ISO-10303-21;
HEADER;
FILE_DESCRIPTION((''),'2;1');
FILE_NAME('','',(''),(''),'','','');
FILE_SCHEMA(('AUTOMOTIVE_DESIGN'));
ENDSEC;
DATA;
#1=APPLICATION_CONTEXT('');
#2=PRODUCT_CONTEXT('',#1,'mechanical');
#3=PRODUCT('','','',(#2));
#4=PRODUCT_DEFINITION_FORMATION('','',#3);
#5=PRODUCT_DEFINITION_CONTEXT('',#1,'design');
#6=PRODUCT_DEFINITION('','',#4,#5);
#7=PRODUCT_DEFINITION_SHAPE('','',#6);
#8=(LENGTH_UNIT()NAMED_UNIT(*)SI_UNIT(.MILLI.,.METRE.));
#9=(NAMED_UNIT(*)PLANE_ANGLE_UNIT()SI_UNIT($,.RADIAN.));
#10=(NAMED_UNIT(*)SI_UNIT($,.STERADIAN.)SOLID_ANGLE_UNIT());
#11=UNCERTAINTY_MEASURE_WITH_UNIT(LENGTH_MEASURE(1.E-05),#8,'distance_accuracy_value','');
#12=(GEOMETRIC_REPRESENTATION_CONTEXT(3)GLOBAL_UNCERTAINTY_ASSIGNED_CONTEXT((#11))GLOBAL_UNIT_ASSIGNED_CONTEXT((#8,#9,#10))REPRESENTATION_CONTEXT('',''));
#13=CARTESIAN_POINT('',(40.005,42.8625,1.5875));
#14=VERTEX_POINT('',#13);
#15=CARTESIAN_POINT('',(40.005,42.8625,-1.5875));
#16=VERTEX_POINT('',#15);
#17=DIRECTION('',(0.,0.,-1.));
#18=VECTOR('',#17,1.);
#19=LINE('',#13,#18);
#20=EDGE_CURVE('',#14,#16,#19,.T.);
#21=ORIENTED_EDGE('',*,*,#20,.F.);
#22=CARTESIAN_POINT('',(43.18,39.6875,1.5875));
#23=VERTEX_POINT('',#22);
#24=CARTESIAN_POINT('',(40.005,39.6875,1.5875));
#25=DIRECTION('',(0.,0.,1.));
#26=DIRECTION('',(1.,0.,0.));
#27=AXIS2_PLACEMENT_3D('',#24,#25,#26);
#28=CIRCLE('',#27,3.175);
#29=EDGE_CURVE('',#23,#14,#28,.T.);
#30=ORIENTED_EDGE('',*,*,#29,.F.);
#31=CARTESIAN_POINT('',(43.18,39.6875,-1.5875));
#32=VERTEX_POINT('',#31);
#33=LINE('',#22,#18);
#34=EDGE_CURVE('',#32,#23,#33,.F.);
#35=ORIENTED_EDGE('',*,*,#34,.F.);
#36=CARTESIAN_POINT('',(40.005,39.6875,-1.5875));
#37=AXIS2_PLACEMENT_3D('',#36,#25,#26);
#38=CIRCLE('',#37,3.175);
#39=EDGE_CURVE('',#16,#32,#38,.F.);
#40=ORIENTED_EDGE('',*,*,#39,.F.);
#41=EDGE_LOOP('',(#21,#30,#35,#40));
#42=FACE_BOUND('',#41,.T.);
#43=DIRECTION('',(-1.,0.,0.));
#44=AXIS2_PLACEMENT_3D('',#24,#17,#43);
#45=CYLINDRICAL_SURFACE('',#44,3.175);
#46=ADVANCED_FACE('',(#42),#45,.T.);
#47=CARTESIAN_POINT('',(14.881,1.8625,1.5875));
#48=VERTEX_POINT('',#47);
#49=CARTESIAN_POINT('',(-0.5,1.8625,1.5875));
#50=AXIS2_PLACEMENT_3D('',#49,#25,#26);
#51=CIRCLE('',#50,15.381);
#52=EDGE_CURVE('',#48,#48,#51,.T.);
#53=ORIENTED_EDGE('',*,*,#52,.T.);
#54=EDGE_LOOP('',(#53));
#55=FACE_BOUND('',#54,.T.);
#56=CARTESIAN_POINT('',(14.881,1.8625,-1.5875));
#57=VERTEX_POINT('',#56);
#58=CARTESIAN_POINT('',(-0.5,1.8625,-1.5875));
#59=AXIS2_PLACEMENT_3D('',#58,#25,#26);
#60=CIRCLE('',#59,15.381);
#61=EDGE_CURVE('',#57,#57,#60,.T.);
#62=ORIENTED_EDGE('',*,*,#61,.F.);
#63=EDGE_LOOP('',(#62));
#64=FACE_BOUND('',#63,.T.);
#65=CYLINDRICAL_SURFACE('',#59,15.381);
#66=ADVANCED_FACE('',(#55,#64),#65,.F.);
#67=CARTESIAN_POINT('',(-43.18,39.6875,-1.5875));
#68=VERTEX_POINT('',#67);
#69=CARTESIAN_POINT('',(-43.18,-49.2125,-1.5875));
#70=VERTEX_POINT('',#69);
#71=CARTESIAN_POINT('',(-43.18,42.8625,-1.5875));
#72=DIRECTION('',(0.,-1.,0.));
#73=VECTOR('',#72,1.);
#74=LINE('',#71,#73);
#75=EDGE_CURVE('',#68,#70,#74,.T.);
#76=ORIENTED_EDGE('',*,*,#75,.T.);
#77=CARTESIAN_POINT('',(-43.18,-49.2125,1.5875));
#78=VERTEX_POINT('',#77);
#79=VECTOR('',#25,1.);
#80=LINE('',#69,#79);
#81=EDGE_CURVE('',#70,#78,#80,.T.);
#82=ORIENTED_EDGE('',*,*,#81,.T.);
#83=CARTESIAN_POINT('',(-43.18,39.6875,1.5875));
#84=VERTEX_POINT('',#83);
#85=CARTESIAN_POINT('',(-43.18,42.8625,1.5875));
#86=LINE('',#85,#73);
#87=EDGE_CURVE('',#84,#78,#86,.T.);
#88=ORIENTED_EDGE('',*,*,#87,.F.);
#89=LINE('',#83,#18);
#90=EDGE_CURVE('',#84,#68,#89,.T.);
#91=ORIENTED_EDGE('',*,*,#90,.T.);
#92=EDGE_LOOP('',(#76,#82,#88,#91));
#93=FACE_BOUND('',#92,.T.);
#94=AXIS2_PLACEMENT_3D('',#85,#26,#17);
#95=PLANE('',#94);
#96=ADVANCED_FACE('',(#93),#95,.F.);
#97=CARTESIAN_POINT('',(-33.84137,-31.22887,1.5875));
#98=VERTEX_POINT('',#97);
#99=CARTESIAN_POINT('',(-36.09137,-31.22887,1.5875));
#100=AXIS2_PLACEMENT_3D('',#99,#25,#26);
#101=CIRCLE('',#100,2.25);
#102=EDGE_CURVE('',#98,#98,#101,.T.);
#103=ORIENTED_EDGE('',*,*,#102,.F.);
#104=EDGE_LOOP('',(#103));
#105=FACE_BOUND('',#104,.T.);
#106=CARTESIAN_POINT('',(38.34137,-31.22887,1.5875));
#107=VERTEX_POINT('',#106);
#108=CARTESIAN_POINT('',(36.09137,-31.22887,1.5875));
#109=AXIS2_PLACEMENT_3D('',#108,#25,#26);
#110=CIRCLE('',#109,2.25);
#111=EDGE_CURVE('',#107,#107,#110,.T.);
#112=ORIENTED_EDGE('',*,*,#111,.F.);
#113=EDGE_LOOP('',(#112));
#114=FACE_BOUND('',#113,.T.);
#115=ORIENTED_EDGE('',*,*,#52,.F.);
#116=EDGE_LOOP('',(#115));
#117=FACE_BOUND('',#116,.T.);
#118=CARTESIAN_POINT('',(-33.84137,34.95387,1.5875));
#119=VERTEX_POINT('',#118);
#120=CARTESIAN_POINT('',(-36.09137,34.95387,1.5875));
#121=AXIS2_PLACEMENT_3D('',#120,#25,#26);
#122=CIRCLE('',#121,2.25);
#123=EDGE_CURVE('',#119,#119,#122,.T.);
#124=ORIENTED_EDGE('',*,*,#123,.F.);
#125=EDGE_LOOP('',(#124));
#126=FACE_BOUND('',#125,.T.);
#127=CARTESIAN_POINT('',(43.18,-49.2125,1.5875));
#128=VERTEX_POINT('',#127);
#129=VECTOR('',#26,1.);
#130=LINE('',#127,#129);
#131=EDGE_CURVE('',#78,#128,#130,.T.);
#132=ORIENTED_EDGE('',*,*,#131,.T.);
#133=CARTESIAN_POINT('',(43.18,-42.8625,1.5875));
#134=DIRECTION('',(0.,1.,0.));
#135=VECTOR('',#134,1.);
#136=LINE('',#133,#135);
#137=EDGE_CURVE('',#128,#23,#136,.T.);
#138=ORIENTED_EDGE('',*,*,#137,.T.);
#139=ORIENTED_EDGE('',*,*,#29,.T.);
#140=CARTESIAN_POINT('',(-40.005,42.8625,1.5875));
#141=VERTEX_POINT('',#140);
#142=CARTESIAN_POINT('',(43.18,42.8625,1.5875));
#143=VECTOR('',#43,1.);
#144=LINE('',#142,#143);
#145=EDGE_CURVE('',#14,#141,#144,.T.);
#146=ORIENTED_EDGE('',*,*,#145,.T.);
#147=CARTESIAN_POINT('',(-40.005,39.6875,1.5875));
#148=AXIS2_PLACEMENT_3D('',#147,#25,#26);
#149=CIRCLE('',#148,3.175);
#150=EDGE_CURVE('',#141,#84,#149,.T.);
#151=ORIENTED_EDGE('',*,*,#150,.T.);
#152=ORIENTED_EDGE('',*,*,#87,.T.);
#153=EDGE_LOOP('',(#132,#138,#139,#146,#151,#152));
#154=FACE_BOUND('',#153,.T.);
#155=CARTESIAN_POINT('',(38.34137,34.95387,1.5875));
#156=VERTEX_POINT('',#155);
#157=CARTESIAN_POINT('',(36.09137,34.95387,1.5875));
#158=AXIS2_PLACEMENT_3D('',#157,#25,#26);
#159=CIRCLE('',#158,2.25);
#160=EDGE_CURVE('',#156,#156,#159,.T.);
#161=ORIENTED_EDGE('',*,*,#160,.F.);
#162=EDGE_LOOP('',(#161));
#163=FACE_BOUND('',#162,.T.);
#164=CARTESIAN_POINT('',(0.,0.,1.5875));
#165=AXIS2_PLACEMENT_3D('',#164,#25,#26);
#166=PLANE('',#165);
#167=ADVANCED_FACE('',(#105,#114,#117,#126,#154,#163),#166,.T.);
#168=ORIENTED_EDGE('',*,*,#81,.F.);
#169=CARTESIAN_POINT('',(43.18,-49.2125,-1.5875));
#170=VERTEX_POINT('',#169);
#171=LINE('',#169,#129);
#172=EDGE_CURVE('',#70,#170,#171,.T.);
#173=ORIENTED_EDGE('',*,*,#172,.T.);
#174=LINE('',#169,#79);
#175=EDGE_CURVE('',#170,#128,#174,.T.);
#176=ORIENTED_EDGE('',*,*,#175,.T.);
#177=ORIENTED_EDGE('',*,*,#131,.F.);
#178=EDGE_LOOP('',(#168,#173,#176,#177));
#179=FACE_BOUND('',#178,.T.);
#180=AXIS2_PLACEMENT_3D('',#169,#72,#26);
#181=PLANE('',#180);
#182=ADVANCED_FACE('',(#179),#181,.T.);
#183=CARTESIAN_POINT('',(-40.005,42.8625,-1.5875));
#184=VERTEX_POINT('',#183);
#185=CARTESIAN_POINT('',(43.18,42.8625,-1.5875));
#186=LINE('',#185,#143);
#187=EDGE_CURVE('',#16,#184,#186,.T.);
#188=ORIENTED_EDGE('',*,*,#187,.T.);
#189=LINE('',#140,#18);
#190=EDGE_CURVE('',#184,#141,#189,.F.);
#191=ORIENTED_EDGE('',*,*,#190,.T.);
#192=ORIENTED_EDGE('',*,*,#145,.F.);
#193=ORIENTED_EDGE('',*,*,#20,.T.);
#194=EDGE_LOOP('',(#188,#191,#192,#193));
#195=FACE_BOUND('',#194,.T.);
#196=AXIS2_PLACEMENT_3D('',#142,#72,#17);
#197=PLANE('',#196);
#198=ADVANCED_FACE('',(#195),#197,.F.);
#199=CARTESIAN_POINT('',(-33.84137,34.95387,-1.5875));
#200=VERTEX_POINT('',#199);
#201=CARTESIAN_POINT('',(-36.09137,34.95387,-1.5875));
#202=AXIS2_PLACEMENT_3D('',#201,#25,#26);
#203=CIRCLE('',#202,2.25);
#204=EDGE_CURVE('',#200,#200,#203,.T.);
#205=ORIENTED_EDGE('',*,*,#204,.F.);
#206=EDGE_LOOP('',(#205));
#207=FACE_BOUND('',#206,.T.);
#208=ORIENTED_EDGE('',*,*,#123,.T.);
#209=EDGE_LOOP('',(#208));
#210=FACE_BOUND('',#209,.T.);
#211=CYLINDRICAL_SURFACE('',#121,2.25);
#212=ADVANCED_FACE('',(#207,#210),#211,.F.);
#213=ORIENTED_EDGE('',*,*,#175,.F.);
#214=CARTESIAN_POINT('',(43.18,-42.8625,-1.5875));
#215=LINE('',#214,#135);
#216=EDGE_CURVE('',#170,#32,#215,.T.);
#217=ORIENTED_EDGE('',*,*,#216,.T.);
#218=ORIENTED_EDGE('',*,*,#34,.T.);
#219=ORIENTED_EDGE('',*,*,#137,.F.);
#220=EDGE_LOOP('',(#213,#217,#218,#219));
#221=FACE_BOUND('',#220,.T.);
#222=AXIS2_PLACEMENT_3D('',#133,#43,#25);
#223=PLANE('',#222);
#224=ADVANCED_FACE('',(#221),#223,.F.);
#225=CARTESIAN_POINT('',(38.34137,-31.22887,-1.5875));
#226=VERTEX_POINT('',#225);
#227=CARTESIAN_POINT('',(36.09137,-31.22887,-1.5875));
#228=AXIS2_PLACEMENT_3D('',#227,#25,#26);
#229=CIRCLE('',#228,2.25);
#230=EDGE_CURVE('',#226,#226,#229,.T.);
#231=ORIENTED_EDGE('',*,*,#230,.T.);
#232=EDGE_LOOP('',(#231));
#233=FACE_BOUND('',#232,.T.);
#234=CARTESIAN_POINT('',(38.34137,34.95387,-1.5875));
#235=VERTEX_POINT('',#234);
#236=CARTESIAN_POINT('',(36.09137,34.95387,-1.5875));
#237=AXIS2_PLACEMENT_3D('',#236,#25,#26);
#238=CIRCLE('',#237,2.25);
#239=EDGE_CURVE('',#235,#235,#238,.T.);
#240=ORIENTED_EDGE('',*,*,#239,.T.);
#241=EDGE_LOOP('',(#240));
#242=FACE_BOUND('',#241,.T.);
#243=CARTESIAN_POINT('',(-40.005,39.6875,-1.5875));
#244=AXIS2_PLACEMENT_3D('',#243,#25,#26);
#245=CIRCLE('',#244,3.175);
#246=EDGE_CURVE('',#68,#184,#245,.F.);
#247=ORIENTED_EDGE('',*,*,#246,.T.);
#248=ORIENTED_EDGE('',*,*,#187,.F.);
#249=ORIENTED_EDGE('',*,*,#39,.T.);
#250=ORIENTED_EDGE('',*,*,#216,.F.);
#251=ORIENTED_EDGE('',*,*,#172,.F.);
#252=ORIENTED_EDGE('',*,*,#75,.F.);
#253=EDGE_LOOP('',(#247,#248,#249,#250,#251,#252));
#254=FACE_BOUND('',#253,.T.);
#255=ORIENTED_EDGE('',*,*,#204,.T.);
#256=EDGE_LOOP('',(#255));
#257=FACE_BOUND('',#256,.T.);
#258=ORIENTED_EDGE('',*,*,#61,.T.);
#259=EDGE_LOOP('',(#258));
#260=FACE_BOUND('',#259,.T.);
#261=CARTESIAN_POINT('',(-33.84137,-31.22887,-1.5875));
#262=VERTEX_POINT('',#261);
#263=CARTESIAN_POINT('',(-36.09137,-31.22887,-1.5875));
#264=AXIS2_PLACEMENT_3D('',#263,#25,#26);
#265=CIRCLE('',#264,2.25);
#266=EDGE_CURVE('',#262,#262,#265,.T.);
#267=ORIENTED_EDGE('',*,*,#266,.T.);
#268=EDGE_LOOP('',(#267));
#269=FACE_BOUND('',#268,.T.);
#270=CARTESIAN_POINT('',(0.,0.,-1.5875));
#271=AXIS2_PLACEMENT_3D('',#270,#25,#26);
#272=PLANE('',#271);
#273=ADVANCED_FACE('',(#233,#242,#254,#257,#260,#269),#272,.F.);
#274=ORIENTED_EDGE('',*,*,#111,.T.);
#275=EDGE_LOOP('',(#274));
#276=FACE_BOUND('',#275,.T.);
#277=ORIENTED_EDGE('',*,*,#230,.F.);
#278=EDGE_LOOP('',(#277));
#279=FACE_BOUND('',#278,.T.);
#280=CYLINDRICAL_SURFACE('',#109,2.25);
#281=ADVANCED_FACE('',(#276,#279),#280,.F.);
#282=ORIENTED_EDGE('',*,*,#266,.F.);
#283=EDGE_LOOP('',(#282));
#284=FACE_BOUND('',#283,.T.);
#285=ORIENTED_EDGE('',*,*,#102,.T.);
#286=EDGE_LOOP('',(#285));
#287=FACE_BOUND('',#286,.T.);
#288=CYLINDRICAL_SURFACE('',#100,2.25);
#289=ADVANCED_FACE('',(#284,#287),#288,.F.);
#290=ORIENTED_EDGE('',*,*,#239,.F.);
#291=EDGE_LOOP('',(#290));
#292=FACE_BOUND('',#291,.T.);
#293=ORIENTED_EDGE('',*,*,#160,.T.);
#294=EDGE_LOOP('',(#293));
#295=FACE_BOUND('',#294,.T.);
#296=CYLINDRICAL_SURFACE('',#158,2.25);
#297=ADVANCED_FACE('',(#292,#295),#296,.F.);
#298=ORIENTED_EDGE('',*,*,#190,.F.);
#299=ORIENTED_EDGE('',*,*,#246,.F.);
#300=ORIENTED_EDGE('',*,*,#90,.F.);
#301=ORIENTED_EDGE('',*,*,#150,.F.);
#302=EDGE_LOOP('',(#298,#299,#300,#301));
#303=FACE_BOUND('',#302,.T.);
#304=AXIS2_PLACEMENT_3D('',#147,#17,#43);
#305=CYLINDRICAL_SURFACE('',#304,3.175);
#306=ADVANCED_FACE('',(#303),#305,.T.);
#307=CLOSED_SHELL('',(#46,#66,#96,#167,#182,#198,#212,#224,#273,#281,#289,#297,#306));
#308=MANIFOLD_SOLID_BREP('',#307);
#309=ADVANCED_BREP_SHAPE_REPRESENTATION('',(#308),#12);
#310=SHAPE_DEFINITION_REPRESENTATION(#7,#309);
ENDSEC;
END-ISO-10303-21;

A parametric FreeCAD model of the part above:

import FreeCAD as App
import Part
import Sketcher
Q = App.Units.Quantity


def edges_at(feature, points):
    """Names of the edges that pass closest to the given points."""
    edges = feature.Shape.Edges
    near = lambda p: min(range(len(edges)), key=lambda i: edges[i].distToShape(Part.Vertex(*p))[0])
    return sorted({f"Edge{near(p) + 1}" for p in points})


def add_polygon(sketch, points):
    """Adds a closed chain of lines whose ends are joined by coincident constraints."""
    first, n = sketch.GeometryCount, len(points)
    for a, b in zip(points, points[1:] + points[:1]):
        sketch.addGeometry(Part.LineSegment(App.Vector(*a, 0), App.Vector(*b, 0)), False)
    for i in range(n):
        sketch.addConstraint(Sketcher.Constraint("Coincident", first + i, 2, first + (i + 1) % n, 1))

doc = App.newDocument("Part")
body = doc.addObject("PartDesign::Body", "Body")

# Sketch on XY plane
sketch1 = doc.addObject("Sketcher::SketchObject", "Sketch")
body.addObject(sketch1)
sketch1.AttachmentSupport = (doc.XY_Plane, [""])
sketch1.MapMode = "FlatFace"
add_polygon(sketch1, [(-43, 43), (-43, -43), (43, -43), (43, 43)])  # lines 0-3
sketch1.addConstraint([
    Sketcher.Constraint("Vertical", 0),
    Sketcher.Constraint("Horizontal", 1),
    Sketcher.Constraint("Vertical", 2),
    Sketcher.Constraint("Horizontal", 3),
    Sketcher.Constraint("Symmetric", 0, 2, 2, 2, -1, 1),
    Sketcher.Constraint("DistanceX", 1, 1, 1, 2, Q("3.4 in")),
    Sketcher.Constraint("DistanceY", 0, 2, 0, 1, Q("3.375 in")),
])
pad1 = doc.addObject("PartDesign::Pad", "Pad")
body.addObject(pad1)
pad1.Profile = sketch1
pad1.Length = Q("0.125 in")
pad1.Midplane = True

# Sketch on XY plane
sketch2 = doc.addObject("Sketcher::SketchObject", "Sketch001")
body.addObject(sketch2)
sketch2.AttachmentSupport = (doc.XY_Plane, [""])
sketch2.MapMode = "FlatFace"
sketch2.AttachmentOffset = App.Placement(App.Vector(0, 0, 0.0625 * 25.4), App.Rotation())
sketch2.addGeometry(Part.Circle(App.Vector(0, 2, 0), App.Vector(0, 0, 1), 15), False)
sketch2.addConstraint([
    Sketcher.Constraint("Diameter", 0, Q("30.762 mm")),
    Sketcher.Constraint("DistanceX", 0, 3, -1, 1, Q("0.5 mm")),
    Sketcher.Constraint("DistanceY", -1, 1, 0, 3, Q("1.8625 mm")),
])
pocket1 = doc.addObject("PartDesign::Pocket", "Pocket")
body.addObject(pocket1)
pocket1.Profile = sketch2
pocket1.Type = "ThroughAll"

# Sketch on XY plane
sketch3 = doc.addObject("Sketcher::SketchObject", "Sketch002")
body.addObject(sketch3)
sketch3.AttachmentSupport = (doc.XY_Plane, [""])
sketch3.MapMode = "FlatFace"
sketch3.AttachmentOffset = App.Placement(App.Vector(0, 0, 0.0625 * 25.4), App.Rotation())
sketch3.addGeometry([
    Part.Circle(App.Vector(36.1, 35, 0), App.Vector(0, 0, 1), 2.2),
    Part.Circle(App.Vector(36.1, -31.2, 0), App.Vector(0, 0, 1), 2.2),
    Part.Circle(App.Vector(-36.1, 35, 0), App.Vector(0, 0, 1), 2.2),
    Part.Circle(App.Vector(-36.1, -31.2, 0), App.Vector(0, 0, 1), 2.2),
], False)
sketch3.addConstraint([
    Sketcher.Constraint("Equal", 0, 1),
    Sketcher.Constraint("Equal", 1, 2),
    Sketcher.Constraint("Equal", 2, 3),
    Sketcher.Constraint("Symmetric", 0, 3, 2, 3, -2),
    Sketcher.Constraint("Symmetric", 1, 3, 3, 3, -2),
    Sketcher.Constraint("Vertical", 0, 3, 1, 3),
    Sketcher.Constraint("Diameter", 0, Q("4.5 mm")),
    Sketcher.Constraint("DistanceX", -1, 1, 0, 3, Q("36.09137 mm")),
    Sketcher.Constraint("DistanceY", -1, 1, 0, 3, Q("34.95387 mm")),
    Sketcher.Constraint("DistanceY", 1, 3, -1, 1, Q("31.22887 mm")),
])
doc.recompute()
hole = doc.addObject("PartDesign::Hole", "Hole")
body.addObject(hole)
hole.Profile = sketch3
hole.ThreadType = "None"
hole.Diameter = 4.5
hole.DepthType = "ThroughAll"

# Sketch on XY plane
sketch4 = doc.addObject("Sketcher::SketchObject", "Sketch003")
body.addObject(sketch4)
sketch4.AttachmentSupport = (doc.XY_Plane, [""])
sketch4.MapMode = "FlatFace"
sketch4.AttachmentOffset = App.Placement(App.Vector(0, 0, 0.0625 * 25.4), App.Rotation())
add_polygon(sketch4, [(-43, -43), (-43, -49), (43, -49), (43, -43)])  # lines 0-3
sketch4.addConstraint([
    Sketcher.Constraint("Vertical", 0),
    Sketcher.Constraint("Horizontal", 1),
    Sketcher.Constraint("Vertical", 2),
    Sketcher.Constraint("Horizontal", 3),
    Sketcher.Constraint("DistanceX", 1, 1, 1, 2, Q("3.4 in")),
    Sketcher.Constraint("DistanceY", 0, 2, 0, 1, Q("0.25 in")),
    Sketcher.Constraint("DistanceX", 0, 2, -1, 1, Q("1.7 in")),
    Sketcher.Constraint("DistanceY", 0, 2, -1, 1, Q("1.9375 in")),
])
pad2 = doc.addObject("PartDesign::Pad", "Pad001")
body.addObject(pad2)
pad2.Profile = sketch4
pad2.Length = Q("0.125 in")
pad2.Reversed = True
doc.recompute()

fillet = doc.addObject("PartDesign::Fillet", "Fillet")
body.addObject(fillet)
fillet.Base = (pad2, edges_at(pad2, [(-43.18, 42.862, 0), (43.18, 42.862, 0)]))
fillet.Radius = Q("0.125 in")

doc.recompute()
